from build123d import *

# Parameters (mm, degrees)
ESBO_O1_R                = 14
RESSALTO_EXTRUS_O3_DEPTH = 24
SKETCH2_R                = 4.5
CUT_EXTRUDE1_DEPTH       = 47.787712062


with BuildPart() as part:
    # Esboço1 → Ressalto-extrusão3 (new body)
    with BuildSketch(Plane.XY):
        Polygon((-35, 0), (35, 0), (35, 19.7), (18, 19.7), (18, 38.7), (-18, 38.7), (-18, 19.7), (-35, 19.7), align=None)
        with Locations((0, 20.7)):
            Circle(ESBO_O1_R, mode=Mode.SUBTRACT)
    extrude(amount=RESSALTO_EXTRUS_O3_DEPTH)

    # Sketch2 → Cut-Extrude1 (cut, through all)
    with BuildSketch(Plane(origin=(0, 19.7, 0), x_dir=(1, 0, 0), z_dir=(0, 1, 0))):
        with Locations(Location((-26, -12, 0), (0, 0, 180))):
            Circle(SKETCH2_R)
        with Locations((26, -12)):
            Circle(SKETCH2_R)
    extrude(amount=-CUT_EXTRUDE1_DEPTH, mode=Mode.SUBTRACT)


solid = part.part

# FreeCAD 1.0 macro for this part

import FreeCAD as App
import Part
import Sketcher
Q = App.Units.Quantity


def add_polygon(sketch, points):
    """Adds a closed chain of lines whose ends are joined by coincident constraints."""
    first, n = sketch.GeometryCount, len(points)
    for a, b in zip(points, points[1:] + points[:1]):
        sketch.addGeometry(Part.LineSegment(App.Vector(*a, 0), App.Vector(*b, 0)), False)
    for i in range(n):
        sketch.addConstraint(Sketcher.Constraint("Coincident", first + i, 2, first + (i + 1) % n, 1))

doc = App.newDocument("Part")
body = doc.addObject("PartDesign::Body", "Body")

# Sketch on XY plane
sketch1 = body.newObject("Sketcher::SketchObject", "Sketch")
sketch1.AttachmentSupport = (doc.getObject("XY_Plane"), [""])
sketch1.MapMode = "FlatFace"
add_polygon(sketch1, [(-35, 0), (35, 0), (35, 20), (18, 20), (18, 39), (-18, 39), (-18, 20), (-35, 20)])  # lines 0-7
sketch1.addGeometry(Part.Circle(App.Vector(0, 21, 0), App.Vector(0, 0, 1), 14), False)  # 8
sketch1.addConstraint([
    Sketcher.Constraint("Horizontal", 0),
    Sketcher.Constraint("Vertical", 1),
    Sketcher.Constraint("Horizontal", 2),
    Sketcher.Constraint("Vertical", 3),
    Sketcher.Constraint("Horizontal", 4),
    Sketcher.Constraint("Vertical", 5),
    Sketcher.Constraint("Horizontal", 6),
    Sketcher.Constraint("Vertical", 7),
    Sketcher.Constraint("Symmetric", 0, 2, 7, 2, -1, 1),
    Sketcher.Constraint("Symmetric", 2, 2, 5, 2, -2),
    Sketcher.Constraint("PointOnObject", 8, 3, -2),
    Sketcher.Constraint("Diameter", 8, Q("28 mm")),
    Sketcher.Constraint("DistanceX", 0, 1, 0, 2, Q("70 mm")),
    Sketcher.Constraint("DistanceX", 2, 2, 2, 1, Q("17 mm")),
    Sketcher.Constraint("DistanceY", 3, 1, 3, 2, Q("19 mm")),
    Sketcher.Constraint("DistanceY", 1, 1, 1, 2, Q("19.7 mm")),
    Sketcher.Constraint("DistanceY", 1, 2, 8, 3, Q("1 mm")),
])
pad1 = body.newObject("PartDesign::Pad", "Pad")
pad1.Profile = sketch1
pad1.Length = 24

# Sketch on XZ plane
sketch2 = body.newObject("Sketcher::SketchObject", "Sketch001")
sketch2.AttachmentSupport = (doc.getObject("XZ_Plane"), [""])
sketch2.MapMode = "FlatFace"
sketch2.AttachmentOffset = App.Placement(App.Vector(0, 0, -19.7), App.Rotation())
sketch2.addGeometry([
    Part.Circle(App.Vector(-26, 12, 0), App.Vector(0, 0, 1), 4.5),
    Part.Circle(App.Vector(26, 12, 0), App.Vector(0, 0, 1), 4.5),
], False)
sketch2.addConstraint([
    Sketcher.Constraint("Equal", 0, 1),
    Sketcher.Constraint("Symmetric", 0, 3, 1, 3, -2),
    Sketcher.Constraint("Diameter", 0, Q("9 mm")),
    Sketcher.Constraint("DistanceX", 0, 3, -1, 1, Q("26 mm")),
    Sketcher.Constraint("DistanceY", -1, 1, 0, 3, Q("12 mm")),
])
pocket1 = body.newObject("PartDesign::Pocket", "Pocket")
pocket1.Profile = sketch2
pocket1.Type = "ThroughAll"
pocket1.Reversed = True

doc.recompute()
